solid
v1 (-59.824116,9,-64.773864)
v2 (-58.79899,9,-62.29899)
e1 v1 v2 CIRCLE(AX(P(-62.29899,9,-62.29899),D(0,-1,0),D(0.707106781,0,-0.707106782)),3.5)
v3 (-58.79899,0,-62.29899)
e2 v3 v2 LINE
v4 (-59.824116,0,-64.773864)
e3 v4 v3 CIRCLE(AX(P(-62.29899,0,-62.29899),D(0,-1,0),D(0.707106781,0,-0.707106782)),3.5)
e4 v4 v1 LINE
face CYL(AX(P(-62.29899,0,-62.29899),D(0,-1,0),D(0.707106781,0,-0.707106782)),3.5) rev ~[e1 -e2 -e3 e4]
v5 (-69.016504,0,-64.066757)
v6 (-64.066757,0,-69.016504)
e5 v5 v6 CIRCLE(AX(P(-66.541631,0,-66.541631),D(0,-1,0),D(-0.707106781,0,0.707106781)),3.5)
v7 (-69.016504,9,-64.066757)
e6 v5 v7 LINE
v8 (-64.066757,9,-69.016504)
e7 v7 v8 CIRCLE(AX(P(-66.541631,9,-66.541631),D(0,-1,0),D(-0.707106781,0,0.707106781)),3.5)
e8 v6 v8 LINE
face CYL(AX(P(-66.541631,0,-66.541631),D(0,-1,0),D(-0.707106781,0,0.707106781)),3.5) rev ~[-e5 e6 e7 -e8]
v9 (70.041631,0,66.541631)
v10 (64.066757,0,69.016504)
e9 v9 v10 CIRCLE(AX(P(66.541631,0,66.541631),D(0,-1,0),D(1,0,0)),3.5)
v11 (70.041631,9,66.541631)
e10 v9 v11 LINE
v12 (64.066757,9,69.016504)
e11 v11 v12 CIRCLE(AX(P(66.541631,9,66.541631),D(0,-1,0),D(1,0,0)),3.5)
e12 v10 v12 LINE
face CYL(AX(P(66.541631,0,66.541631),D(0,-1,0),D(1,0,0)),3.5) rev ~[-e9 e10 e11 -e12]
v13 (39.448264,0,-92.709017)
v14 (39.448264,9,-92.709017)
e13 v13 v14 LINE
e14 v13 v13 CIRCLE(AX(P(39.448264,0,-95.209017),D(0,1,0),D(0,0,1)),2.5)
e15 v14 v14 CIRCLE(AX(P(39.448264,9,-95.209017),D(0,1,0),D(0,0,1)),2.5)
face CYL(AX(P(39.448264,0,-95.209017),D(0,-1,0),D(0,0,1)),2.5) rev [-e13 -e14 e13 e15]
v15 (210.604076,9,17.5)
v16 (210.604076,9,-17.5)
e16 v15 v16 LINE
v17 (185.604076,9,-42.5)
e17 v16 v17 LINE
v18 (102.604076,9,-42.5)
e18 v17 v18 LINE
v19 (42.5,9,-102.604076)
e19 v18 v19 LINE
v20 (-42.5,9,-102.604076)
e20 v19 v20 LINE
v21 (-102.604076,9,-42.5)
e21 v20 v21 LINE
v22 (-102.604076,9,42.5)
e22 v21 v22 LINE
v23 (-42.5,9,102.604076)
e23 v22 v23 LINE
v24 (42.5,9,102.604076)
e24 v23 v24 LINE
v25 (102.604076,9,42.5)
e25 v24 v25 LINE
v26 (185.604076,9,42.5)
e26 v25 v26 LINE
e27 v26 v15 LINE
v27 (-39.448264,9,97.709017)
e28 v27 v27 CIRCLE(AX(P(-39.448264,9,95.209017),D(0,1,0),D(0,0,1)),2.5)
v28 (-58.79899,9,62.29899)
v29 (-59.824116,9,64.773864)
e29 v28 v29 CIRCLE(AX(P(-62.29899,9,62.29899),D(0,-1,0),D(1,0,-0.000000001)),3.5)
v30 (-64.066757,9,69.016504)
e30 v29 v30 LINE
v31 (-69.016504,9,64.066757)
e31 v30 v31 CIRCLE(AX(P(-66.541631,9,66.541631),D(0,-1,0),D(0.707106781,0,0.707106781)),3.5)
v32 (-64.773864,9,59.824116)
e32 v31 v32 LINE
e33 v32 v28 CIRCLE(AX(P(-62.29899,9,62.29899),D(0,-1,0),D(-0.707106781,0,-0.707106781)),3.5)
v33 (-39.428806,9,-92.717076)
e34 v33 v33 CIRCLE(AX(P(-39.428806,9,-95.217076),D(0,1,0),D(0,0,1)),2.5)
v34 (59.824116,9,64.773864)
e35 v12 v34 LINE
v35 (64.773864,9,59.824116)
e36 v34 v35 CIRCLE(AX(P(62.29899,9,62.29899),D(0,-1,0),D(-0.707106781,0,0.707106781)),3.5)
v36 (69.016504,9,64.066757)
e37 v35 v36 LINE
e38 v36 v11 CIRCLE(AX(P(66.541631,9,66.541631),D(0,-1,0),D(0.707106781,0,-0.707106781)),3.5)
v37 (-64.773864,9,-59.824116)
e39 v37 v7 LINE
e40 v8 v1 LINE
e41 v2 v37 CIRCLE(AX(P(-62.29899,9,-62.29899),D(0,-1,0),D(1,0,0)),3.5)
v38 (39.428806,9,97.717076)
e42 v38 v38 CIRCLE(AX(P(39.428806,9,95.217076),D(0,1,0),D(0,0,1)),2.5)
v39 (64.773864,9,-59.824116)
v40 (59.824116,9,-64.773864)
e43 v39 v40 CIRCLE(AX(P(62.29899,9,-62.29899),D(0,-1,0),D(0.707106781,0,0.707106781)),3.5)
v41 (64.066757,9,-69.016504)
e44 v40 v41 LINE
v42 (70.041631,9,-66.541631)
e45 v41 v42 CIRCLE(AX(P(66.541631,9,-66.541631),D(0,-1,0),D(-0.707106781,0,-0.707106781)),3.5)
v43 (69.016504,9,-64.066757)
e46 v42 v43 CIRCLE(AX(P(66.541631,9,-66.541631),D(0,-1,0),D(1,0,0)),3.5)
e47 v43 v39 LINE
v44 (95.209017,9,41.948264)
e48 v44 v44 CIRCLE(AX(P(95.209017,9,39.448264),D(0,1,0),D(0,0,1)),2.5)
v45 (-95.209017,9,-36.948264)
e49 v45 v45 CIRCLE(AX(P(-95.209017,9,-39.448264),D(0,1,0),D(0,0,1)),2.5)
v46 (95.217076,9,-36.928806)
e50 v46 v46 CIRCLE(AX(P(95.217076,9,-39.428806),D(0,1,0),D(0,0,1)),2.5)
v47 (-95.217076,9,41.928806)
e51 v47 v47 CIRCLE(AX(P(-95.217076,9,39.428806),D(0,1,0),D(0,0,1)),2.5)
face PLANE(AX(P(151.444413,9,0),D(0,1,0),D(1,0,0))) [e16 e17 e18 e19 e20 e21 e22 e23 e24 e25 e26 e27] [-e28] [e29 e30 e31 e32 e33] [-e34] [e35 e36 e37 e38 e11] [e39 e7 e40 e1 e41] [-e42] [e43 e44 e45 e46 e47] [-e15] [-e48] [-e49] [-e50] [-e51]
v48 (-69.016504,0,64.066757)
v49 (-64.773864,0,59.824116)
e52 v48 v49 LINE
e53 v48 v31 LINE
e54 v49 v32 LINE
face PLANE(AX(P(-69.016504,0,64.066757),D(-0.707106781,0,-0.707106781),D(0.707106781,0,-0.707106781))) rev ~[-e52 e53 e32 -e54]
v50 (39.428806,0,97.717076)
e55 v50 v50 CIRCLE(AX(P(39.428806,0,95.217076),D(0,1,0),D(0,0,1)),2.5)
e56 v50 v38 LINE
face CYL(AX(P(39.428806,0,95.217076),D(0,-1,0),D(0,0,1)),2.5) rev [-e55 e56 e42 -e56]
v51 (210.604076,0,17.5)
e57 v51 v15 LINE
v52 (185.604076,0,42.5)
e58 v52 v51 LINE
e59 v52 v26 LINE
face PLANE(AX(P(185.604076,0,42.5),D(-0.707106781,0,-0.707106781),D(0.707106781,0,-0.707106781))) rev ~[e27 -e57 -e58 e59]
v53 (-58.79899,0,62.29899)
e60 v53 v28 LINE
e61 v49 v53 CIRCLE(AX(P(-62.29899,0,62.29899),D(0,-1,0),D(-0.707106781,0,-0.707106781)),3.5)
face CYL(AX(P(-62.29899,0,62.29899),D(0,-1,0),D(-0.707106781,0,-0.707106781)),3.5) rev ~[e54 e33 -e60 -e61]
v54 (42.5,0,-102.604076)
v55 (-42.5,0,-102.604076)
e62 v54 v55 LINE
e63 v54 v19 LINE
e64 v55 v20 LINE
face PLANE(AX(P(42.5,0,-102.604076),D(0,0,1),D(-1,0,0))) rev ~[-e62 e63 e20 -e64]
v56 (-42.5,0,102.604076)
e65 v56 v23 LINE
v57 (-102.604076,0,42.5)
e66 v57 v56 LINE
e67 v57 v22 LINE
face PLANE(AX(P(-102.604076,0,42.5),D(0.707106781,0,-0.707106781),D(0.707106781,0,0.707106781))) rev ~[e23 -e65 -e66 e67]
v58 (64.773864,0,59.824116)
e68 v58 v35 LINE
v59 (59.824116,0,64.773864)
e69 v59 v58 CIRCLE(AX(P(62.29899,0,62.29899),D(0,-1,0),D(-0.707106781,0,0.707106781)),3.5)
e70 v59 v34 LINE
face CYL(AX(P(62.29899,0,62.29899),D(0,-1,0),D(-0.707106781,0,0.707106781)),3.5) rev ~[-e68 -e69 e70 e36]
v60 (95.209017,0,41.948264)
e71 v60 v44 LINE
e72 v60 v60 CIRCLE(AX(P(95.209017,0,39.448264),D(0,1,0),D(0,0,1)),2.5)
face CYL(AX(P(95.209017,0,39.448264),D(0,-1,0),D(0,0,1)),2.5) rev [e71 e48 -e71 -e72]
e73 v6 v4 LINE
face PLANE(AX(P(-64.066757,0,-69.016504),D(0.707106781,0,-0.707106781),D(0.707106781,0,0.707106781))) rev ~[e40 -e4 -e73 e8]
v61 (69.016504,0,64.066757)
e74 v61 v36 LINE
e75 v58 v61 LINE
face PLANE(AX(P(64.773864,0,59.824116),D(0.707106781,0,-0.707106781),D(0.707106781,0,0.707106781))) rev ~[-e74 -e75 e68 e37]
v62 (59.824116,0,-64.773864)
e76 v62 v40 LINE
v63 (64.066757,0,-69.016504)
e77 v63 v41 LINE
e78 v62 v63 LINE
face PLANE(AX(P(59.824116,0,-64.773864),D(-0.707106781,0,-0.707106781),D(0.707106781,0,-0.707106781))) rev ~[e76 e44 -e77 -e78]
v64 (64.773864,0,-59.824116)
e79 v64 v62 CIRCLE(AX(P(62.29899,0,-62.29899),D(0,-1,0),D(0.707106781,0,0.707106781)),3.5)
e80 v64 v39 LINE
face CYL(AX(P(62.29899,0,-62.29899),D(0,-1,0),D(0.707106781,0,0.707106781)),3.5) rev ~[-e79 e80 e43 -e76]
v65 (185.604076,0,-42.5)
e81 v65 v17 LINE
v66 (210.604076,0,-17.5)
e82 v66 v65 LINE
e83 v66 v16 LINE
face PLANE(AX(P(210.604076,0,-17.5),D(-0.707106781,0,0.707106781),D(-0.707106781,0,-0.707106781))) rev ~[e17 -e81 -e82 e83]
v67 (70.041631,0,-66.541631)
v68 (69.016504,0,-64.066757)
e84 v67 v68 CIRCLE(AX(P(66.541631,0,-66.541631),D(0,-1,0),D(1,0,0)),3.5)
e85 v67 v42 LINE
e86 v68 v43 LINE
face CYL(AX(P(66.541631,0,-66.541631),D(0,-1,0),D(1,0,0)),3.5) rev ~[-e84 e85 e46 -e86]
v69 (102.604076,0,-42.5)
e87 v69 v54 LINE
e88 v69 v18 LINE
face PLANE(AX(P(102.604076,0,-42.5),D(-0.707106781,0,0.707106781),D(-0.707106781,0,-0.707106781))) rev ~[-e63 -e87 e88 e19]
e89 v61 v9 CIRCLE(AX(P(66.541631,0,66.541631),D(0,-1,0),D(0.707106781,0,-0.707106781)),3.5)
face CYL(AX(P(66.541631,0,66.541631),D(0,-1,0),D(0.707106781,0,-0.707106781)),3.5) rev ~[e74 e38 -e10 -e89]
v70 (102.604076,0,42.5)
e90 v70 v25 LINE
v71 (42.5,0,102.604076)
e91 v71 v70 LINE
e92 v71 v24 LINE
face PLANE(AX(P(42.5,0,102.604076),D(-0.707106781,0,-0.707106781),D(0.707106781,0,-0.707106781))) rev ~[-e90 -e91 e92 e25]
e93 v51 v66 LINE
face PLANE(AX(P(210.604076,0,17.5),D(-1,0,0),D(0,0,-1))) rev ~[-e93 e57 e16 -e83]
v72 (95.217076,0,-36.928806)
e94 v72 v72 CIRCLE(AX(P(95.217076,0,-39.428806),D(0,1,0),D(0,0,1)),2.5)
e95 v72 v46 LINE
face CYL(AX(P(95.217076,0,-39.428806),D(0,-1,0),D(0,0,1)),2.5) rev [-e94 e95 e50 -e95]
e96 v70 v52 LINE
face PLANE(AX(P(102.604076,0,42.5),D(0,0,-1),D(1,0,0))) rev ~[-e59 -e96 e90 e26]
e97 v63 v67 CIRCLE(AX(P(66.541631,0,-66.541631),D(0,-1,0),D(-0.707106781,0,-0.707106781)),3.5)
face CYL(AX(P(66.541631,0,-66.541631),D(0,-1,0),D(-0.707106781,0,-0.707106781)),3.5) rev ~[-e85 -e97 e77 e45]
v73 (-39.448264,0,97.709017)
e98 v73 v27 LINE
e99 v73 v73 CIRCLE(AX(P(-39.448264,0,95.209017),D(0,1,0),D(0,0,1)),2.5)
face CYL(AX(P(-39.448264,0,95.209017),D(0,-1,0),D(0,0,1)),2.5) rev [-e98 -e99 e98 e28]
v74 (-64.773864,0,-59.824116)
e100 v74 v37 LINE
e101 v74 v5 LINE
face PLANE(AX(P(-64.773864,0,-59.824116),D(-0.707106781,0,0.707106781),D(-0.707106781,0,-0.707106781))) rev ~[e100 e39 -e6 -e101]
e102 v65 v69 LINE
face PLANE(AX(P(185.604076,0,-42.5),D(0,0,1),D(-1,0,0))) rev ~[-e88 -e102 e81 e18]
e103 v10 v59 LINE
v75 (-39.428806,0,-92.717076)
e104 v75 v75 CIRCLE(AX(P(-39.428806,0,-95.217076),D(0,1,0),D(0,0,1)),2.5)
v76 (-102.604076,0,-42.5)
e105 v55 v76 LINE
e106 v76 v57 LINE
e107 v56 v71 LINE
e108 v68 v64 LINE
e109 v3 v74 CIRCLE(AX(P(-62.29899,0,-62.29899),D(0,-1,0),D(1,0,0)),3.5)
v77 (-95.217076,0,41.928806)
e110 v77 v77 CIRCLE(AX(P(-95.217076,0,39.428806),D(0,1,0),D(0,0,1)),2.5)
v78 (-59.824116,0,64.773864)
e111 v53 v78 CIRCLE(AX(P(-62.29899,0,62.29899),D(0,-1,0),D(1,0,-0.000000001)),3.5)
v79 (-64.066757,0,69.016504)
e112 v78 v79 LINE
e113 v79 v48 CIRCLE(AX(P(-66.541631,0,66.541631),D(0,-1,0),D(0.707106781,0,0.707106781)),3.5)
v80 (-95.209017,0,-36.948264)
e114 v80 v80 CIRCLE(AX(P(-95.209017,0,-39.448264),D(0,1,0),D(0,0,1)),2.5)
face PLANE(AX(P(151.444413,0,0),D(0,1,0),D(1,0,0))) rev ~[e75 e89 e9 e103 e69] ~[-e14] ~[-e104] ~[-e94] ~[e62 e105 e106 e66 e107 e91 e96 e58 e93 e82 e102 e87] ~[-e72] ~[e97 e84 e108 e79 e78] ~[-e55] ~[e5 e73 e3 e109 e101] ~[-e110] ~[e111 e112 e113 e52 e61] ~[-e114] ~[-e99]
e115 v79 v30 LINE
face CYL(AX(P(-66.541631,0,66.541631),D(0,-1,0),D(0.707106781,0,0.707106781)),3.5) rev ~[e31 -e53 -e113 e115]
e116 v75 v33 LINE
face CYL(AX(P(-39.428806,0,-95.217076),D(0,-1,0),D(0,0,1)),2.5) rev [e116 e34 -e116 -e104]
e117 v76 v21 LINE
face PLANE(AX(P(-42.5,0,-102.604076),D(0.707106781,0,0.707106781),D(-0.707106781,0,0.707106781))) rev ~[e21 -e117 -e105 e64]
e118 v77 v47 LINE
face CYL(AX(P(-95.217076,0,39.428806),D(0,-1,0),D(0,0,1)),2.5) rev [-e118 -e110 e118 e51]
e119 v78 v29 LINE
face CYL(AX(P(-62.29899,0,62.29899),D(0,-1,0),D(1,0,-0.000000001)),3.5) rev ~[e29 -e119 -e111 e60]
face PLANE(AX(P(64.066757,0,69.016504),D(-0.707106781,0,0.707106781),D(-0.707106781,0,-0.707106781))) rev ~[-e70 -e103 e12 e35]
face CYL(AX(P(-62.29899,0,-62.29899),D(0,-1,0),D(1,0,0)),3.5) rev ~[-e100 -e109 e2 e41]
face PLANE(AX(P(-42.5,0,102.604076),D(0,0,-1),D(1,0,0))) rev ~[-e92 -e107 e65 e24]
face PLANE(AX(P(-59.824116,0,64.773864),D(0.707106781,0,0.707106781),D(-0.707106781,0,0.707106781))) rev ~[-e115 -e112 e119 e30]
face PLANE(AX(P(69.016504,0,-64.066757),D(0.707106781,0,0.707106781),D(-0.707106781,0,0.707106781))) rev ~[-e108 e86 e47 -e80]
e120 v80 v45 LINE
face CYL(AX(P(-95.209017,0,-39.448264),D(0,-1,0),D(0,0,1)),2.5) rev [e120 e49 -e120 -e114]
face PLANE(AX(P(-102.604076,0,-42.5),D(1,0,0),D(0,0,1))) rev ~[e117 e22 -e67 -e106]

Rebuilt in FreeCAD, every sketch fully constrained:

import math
import FreeCAD as App
import Part
import Sketcher
from FreeCAD import Vector
Q = App.Units.Quantity


def add_polygon(sketch, points):
    """Adds a closed chain of lines whose ends are joined by coincident constraints."""
    first, n = sketch.GeometryCount, len(points)
    for a, b in zip(points, points[1:] + points[:1]):
        sketch.addGeometry(Part.LineSegment(App.Vector(*a, 0), App.Vector(*b, 0)), False)
    for i in range(n):
        sketch.addConstraint(Sketcher.Constraint("Coincident", first + i, 2, first + (i + 1) % n, 1))

doc = App.newDocument("Part")
body = doc.addObject("PartDesign::Body", "Body")

# Sketch on XZ plane
sketch1 = body.newObject("Sketcher::SketchObject", "Sketch")
sketch1.AttachmentSupport = (doc.getObject("XZ_Plane"), [""])
sketch1.MapMode = "FlatFace"
add_polygon(sketch1, [(42.5, -102.6), (-42.5, -102.6), (-102.6, -42.5), (-102.6, 42.5), (-42.5, 102.6), (42.5, 102.6), (102.6, 42.5), (185.6, 42.5), (210.6, 17.5), (210.6, -17.5), (185.6, -42.5), (102.6, -42.5)])  # lines 0-11
sketch1.addGeometry(Part.ArcOfCircle(Part.Circle(Vector(-62.3, 62.3, 0), Vector(0, 0, 1), 3.5), math.radians(0), math.radians(45)), False)  # 12
sketch1.addGeometry(Part.LineSegment(Vector(-59.8, 64.8, 0), Vector(-64.1, 69, 0)), False)  # 13
sketch1.addGeometry(Part.ArcOfCircle(Part.Circle(Vector(-66.5, 66.5, 0), Vector(0, 0, 1), 3.5), math.radians(45), math.radians(225)), False)  # 14
sketch1.addGeometry(Part.LineSegment(Vector(-69, 64.1, 0), Vector(-64.8, 59.8, 0)), False)  # 15
sketch1.addGeometry(Part.ArcOfCircle(Part.Circle(Vector(-62.3, 62.3, 0), Vector(0, 0, 1), 3.5), math.radians(-135), math.radians(0)), False)  # 16
sketch1.addGeometry(Part.Circle(Vector(-39.4, 95.2, 0), Vector(0, 0, 1), 2.5), False)  # 17
sketch1.addGeometry(Part.Circle(Vector(-95.2, 39.4, 0), Vector(0, 0, 1), 2.5), False)  # 18
sketch1.addGeometry(Part.Circle(Vector(39.4, 95.2, 0), Vector(0, 0, 1), 2.5), False)  # 19
sketch1.addGeometry(Part.ArcOfCircle(Part.Circle(Vector(62.3, 62.3, 0), Vector(0, 0, 1), 3.5), math.radians(135), math.radians(315)), False)  # 20
sketch1.addGeometry(Part.LineSegment(Vector(64.8, 59.8, 0), Vector(69, 64.1, 0)), False)  # 21
sketch1.addGeometry(Part.ArcOfCircle(Part.Circle(Vector(66.5, 66.5, 0), Vector(0, 0, 1), 3.5), math.radians(-45), math.radians(0)), False)  # 22
sketch1.addGeometry(Part.ArcOfCircle(Part.Circle(Vector(66.5, 66.5, 0), Vector(0, 0, 1), 3.5), math.radians(0), math.radians(135)), False)  # 23
sketch1.addGeometry(Part.LineSegment(Vector(64.1, 69, 0), Vector(59.8, 64.8, 0)), False)  # 24
sketch1.addGeometry(Part.Circle(Vector(95.2, 39.4, 0), Vector(0, 0, 1), 2.5), False)  # 25
sketch1.addGeometry(Part.Circle(Vector(-95.2, -39.4, 0), Vector(0, 0, 1), 2.5), False)  # 26
sketch1.addGeometry(Part.ArcOfCircle(Part.Circle(Vector(-62.3, -62.3, 0), Vector(0, 0, 1), 3.5), math.radians(0), math.radians(135)), False)  # 27
sketch1.addGeometry(Part.LineSegment(Vector(-64.8, -59.8, 0), Vector(-69, -64.1, 0)), False)  # 28
sketch1.addGeometry(Part.ArcOfCircle(Part.Circle(Vector(-66.5, -66.5, 0), Vector(0, 0, 1), 3.5), math.radians(135), math.radians(315)), False)  # 29
sketch1.addGeometry(Part.LineSegment(Vector(-64.1, -69, 0), Vector(-59.8, -64.8, 0)), False)  # 30
sketch1.addGeometry(Part.ArcOfCircle(Part.Circle(Vector(-62.3, -62.3, 0), Vector(0, 0, 1), 3.5), math.radians(-45), math.radians(0)), False)  # 31
sketch1.addGeometry(Part.Circle(Vector(-39.4, -95.2, 0), Vector(0, 0, 1), 2.5), False)  # 32
sketch1.addGeometry(Part.Circle(Vector(95.2, -39.4, 0), Vector(0, 0, 1), 2.5), False)  # 33
sketch1.addGeometry(Part.Circle(Vector(39.4, -95.2, 0), Vector(0, 0, 1), 2.5), False)  # 34
sketch1.addGeometry(Part.ArcOfCircle(Part.Circle(Vector(62.3, -62.3, 0), Vector(0, 0, 1), 3.5), math.radians(45), math.radians(225)), False)  # 35
sketch1.addGeometry(Part.LineSegment(Vector(59.8, -64.8, 0), Vector(64.1, -69, 0)), False)  # 36
sketch1.addGeometry(Part.ArcOfCircle(Part.Circle(Vector(66.5, -66.5, 0), Vector(0, 0, 1), 3.5), math.radians(-135), math.radians(0)), False)  # 37
sketch1.addGeometry(Part.ArcOfCircle(Part.Circle(Vector(66.5, -66.5, 0), Vector(0, 0, 1), 3.5), math.radians(0), math.radians(45)), False)  # 38
sketch1.addGeometry(Part.LineSegment(Vector(69, -64.1, 0), Vector(64.8, -59.8, 0)), False)  # 39
sketch1.addConstraint(Sketcher.Constraint("Tangent", 12, 2, 13, 1))
sketch1.addConstraint(Sketcher.Constraint("Tangent", 13, 2, 14, 1))
sketch1.addConstraint(Sketcher.Constraint("Tangent", 14, 2, 15, 1))
sketch1.addConstraint(Sketcher.Constraint("Tangent", 15, 2, 16, 1))
sketch1.addConstraint(Sketcher.Constraint("Tangent", 16, 2, 12, 1))
sketch1.addConstraint(Sketcher.Constraint("Tangent", 20, 2, 21, 1))
sketch1.addConstraint(Sketcher.Constraint("Tangent", 21, 2, 22, 1))
sketch1.addConstraint(Sketcher.Constraint("Tangent", 22, 2, 23, 1))
sketch1.addConstraint(Sketcher.Constraint("Tangent", 23, 2, 24, 1))
sketch1.addConstraint(Sketcher.Constraint("Tangent", 24, 2, 20, 1))
sketch1.addConstraint(Sketcher.Constraint("Tangent", 27, 2, 28, 1))
sketch1.addConstraint(Sketcher.Constraint("Tangent", 28, 2, 29, 1))
sketch1.addConstraint(Sketcher.Constraint("Tangent", 29, 2, 30, 1))
sketch1.addConstraint(Sketcher.Constraint("Tangent", 30, 2, 31, 1))
sketch1.addConstraint(Sketcher.Constraint("Tangent", 31, 2, 27, 1))
sketch1.addConstraint(Sketcher.Constraint("Tangent", 35, 2, 36, 1))
sketch1.addConstraint(Sketcher.Constraint("Tangent", 36, 2, 37, 1))
sketch1.addConstraint(Sketcher.Constraint("Tangent", 37, 2, 38, 1))
sketch1.addConstraint(Sketcher.Constraint("Tangent", 38, 2, 39, 1))
sketch1.addConstraint(Sketcher.Constraint("Tangent", 39, 2, 35, 1))
sketch1.addConstraint(Sketcher.Constraint("Horizontal", 0))
sketch1.addConstraint(Sketcher.Constraint("Vertical", 2))
sketch1.addConstraint(Sketcher.Constraint("Horizontal", 4))
sketch1.addConstraint(Sketcher.Constraint("Horizontal", 6))
sketch1.addConstraint(Sketcher.Constraint("Vertical", 8))
sketch1.addConstraint(Sketcher.Constraint("Horizontal", 10))
sketch1.addConstraint(Sketcher.Constraint("Equal", 12, 14))
sketch1.addConstraint(Sketcher.Constraint("Equal", 14, 16))
sketch1.addConstraint(Sketcher.Constraint("Equal", 17, 18))
sketch1.addConstraint(Sketcher.Constraint("Equal", 18, 19))
sketch1.addConstraint(Sketcher.Constraint("Equal", 16, 20))
sketch1.addConstraint(Sketcher.Constraint("Equal", 20, 22))
sketch1.addConstraint(Sketcher.Constraint("Equal", 22, 23))
sketch1.addConstraint(Sketcher.Constraint("Equal", 19, 25))
sketch1.addConstraint(Sketcher.Constraint("Equal", 25, 26))
sketch1.addConstraint(Sketcher.Constraint("Equal", 23, 27))
sketch1.addConstraint(Sketcher.Constraint("Equal", 27, 29))
sketch1.addConstraint(Sketcher.Constraint("Equal", 29, 31))
sketch1.addConstraint(Sketcher.Constraint("Equal", 26, 32))
sketch1.addConstraint(Sketcher.Constraint("Equal", 32, 33))
sketch1.addConstraint(Sketcher.Constraint("Equal", 33, 34))
sketch1.addConstraint(Sketcher.Constraint("Equal", 31, 35))
sketch1.addConstraint(Sketcher.Constraint("Equal", 35, 37))
sketch1.addConstraint(Sketcher.Constraint("Equal", 37, 38))
sketch1.addConstraint(Sketcher.Constraint("Symmetric", 25, 3, 26, 3, -1, 1))
sketch1.addConstraint(Sketcher.Constraint("Symmetric", 20, 3, 27, 3, -1, 1))
sketch1.addConstraint(Sketcher.Constraint("Symmetric", 22, 3, 29, 3, -1, 1))
sketch1.addConstraint(Sketcher.Constraint("Symmetric", 19, 3, 32, 3, -1, 1))
sketch1.addConstraint(Sketcher.Constraint("Symmetric", 18, 3, 33, 3, -1, 1))
sketch1.addConstraint(Sketcher.Constraint("Symmetric", 17, 3, 34, 3, -1, 1))
sketch1.addConstraint(Sketcher.Constraint("Symmetric", 12, 3, 35, 3, -1, 1))
sketch1.addConstraint(Sketcher.Constraint("Symmetric", 14, 3, 37, 3, -1, 1))
sketch1.addConstraint(Sketcher.Constraint("Symmetric", 0, 2, 4, 2, -1, 1))
sketch1.addConstraint(Sketcher.Constraint("Symmetric", 1, 2, 5, 2, -1, 1))
sketch1.addConstraint(Sketcher.Constraint("Symmetric", 2, 2, 10, 2, -1, 1))
sketch1.addConstraint(Sketcher.Constraint("Symmetric", 12, 3, 20, 3, -2))
sketch1.addConstraint(Sketcher.Constraint("Symmetric", 14, 3, 22, 3, -2))
sketch1.addConstraint(Sketcher.Constraint("Symmetric", 6, 2, 9, 2, -1))
sketch1.addConstraint(Sketcher.Constraint("Perpendicular", 1, 3))
sketch1.addConstraint(Sketcher.Constraint("Parallel", 5, 7))
sketch1.addConstraint(Sketcher.Constraint("Perpendicular", 7, 9))
sketch1.addConstraint(Sketcher.Constraint("Parallel", 9, 11))
sketch1.addConstraint(Sketcher.Constraint("Perpendicular", 11, 13))
sketch1.addConstraint(Sketcher.Constraint("Perpendicular", 15, 21))
sketch1.addConstraint(Sketcher.Constraint("Horizontal", 20, 3, 16, 2))
sketch1.addConstraint(Sketcher.Constraint("Horizontal", 23, 3, 22, 2))
sketch1.addConstraint(Sketcher.Constraint("Horizontal", 35, 3, 31, 2))
sketch1.addConstraint(Sketcher.Constraint("Horizontal", 38, 3, 37, 2))
sketch1.addConstraint(Sketcher.Constraint("Equal", 4, 2))
sketch1.addConstraint(Sketcher.Constraint("Diameter", 17, Q("5 mm")))
sketch1.addConstraint(Sketcher.Constraint("Radius", 12, Q("3.5 mm")))
sketch1.addConstraint(Sketcher.Constraint("DistanceX", 0, 2, 0, 1, Q("85 mm")))
sketch1.addConstraint(Sketcher.Constraint("DistanceX", 6, 1, 6, 2, Q("83 mm")))
sketch1.addConstraint(Sketcher.Constraint("DistanceY", 8, 2, 8, 1, Q("35 mm")))
sketch1.addConstraint(Sketcher.Constraint("Distance", 1, Q("85 mm")))
sketch1.addConstraint(Sketcher.Constraint("Distance", 13, Q("6 mm")))
sketch1.addConstraint(Sketcher.Constraint("DistanceY", 0, 2, 32, 3, Q("7.387 mm")))
sketch1.addConstraint(Sketcher.Constraint("DistanceX", 1, 2, 18, 3, Q("7.387 mm")))
sketch1.addConstraint(Sketcher.Constraint("DistanceX", 12, 3, -1, 1, Q("62.29899 mm")))
sketch1.addConstraint(Sketcher.Constraint("DistanceY", -1, 1, 12, 3, Q("62.29899 mm")))
sketch1.addConstraint(Sketcher.Constraint("DistanceY", 18, 3, 17, 3, Q("55.78021 mm")))
sketch1.addConstraint(Sketcher.Constraint("DistanceX", 17, 3, 19, 3, Q("78.87707 mm")))
sketch1.addConstraint(Sketcher.Constraint("DistanceY", 17, 3, 19, 3, Q("0.00806 mm")))
sketch1.addConstraint(Sketcher.Constraint("DistanceX", 19, 3, 25, 3, Q("55.78021 mm")))
sketch1.addConstraint(Sketcher.Constraint("DistanceX", 18, 3, 26, 3, Q("0.00806 mm")))
sketch1.addConstraint(Sketcher.Constraint("DistanceY", 26, 3, 18, 3, Q("78.87707 mm")))
pad1 = body.newObject("PartDesign::Pad", "Pad")
pad1.Profile = sketch1
pad1.Length = 9
pad1.Reversed = True

doc.recompute()
